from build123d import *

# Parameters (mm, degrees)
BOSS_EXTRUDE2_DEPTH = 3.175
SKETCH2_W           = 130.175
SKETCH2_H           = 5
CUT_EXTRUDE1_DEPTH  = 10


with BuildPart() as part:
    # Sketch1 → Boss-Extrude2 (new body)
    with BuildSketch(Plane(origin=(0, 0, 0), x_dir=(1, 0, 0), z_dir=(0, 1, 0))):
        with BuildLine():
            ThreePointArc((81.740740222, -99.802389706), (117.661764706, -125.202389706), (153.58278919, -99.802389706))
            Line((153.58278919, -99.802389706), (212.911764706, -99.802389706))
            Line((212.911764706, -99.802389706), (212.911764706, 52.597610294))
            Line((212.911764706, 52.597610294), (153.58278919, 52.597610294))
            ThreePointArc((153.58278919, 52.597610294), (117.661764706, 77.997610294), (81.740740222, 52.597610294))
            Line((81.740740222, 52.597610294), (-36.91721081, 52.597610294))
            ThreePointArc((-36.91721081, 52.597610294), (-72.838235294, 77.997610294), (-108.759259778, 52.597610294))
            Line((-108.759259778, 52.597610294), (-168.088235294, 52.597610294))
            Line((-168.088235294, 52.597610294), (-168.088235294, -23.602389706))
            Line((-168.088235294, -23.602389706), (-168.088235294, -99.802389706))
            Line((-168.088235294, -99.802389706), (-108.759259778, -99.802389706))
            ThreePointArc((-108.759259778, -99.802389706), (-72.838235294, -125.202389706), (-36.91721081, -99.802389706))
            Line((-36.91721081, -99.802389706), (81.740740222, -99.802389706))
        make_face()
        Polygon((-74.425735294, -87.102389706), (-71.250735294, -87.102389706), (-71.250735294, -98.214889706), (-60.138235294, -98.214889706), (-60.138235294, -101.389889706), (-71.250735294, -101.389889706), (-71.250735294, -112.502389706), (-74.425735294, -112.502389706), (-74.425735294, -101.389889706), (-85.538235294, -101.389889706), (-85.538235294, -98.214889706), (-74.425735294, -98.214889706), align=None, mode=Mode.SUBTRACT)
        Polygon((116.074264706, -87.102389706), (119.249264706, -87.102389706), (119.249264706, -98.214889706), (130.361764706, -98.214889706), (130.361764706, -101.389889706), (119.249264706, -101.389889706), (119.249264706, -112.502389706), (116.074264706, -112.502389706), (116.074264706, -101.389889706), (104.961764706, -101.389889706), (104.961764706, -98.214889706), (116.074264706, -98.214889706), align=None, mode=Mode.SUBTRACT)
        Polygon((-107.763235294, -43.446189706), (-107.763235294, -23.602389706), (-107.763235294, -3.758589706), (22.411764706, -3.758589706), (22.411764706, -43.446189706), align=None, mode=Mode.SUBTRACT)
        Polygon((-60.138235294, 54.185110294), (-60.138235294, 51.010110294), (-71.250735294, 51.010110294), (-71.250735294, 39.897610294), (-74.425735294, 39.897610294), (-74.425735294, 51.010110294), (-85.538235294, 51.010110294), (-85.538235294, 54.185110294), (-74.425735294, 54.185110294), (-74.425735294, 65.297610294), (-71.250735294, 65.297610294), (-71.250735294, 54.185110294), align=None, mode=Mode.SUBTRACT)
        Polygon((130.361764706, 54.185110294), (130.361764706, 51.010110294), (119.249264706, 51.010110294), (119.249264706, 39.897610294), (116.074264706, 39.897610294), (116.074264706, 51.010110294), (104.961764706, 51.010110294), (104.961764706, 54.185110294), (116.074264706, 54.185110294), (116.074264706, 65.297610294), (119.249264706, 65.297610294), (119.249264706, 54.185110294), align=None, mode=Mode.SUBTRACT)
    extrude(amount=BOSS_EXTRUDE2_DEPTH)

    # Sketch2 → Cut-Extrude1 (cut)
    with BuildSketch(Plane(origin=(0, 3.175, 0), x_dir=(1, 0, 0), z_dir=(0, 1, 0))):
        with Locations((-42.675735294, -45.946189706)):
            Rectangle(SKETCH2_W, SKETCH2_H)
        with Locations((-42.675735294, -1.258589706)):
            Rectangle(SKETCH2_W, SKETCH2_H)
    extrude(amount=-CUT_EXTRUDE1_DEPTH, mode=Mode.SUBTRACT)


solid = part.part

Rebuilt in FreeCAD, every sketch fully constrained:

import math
import FreeCAD as App
import Part
import Sketcher
from FreeCAD import Vector
Q = App.Units.Quantity


def add_polygon(sketch, points):
    """Adds a closed chain of lines whose ends are joined by coincident constraints."""
    first, n = sketch.GeometryCount, len(points)
    for a, b in zip(points, points[1:] + points[:1]):
        sketch.addGeometry(Part.LineSegment(App.Vector(*a, 0), App.Vector(*b, 0)), False)
    for i in range(n):
        sketch.addConstraint(Sketcher.Constraint("Coincident", first + i, 2, first + (i + 1) % n, 1))

doc = App.newDocument("Part")
body = doc.addObject("PartDesign::Body", "Body")

sketch1 = doc.addObject("Sketcher::SketchObject", "Sketch")
body.addObject(sketch1)
sketch1.AttachmentSupport = (doc.XZ_Plane, [""])
sketch1.MapMode = "FlatFace"
sketch1.addGeometry(Part.ArcOfCircle(Part.Circle(Vector(117.661765, 87.10239, 0), Vector(0, 0, 1), 38.1), math.radians(19.471221), math.radians(160.528779)), False)
sketch1.addGeometry(Part.LineSegment(Vector(153.582789, 99.80239, 0), Vector(212.911765, 99.80239, 0)), False)
sketch1.addGeometry(Part.LineSegment(Vector(212.911765, 99.80239, 0), Vector(212.911765, -52.59761, 0)), False)
sketch1.addGeometry(Part.LineSegment(Vector(212.911765, -52.59761, 0), Vector(153.582789, -52.59761, 0)), False)
sketch1.addGeometry(Part.ArcOfCircle(Part.Circle(Vector(117.661765, -39.89761, 0), Vector(0, 0, 1), 38.1), math.radians(-160.528779), math.radians(-19.471221)), False)
sketch1.addGeometry(Part.LineSegment(Vector(81.74074, -52.59761, 0), Vector(-36.917211, -52.59761, 0)), False)
sketch1.addGeometry(Part.ArcOfCircle(Part.Circle(Vector(-72.838235, -39.89761, 0), Vector(0, 0, 1), 38.1), math.radians(-160.528779), math.radians(-19.471221)), False)
sketch1.addGeometry(Part.LineSegment(Vector(-108.75926, -52.59761, 0), Vector(-168.088235, -52.59761, 0)), False)
sketch1.addGeometry(Part.LineSegment(Vector(-168.088235, -52.59761, 0), Vector(-168.088235, 99.80239, 0)), False)
sketch1.addGeometry(Part.LineSegment(Vector(-168.088235, 99.80239, 0), Vector(-108.75926, 99.80239, 0)), False)
sketch1.addGeometry(Part.ArcOfCircle(Part.Circle(Vector(-72.838235, 87.10239, 0), Vector(0, 0, 1), 38.1), math.radians(19.471221), math.radians(160.528779)), False)
sketch1.addGeometry(Part.LineSegment(Vector(-36.917211, 99.80239, 0), Vector(81.74074, 99.80239, 0)), False)
add_polygon(sketch1, [(-74.425735, 98.21489), (-74.425735, 87.10239), (-71.250735, 87.10239), (-71.250735, 98.21489), (-60.138235, 98.21489), (-60.138235, 101.38989), (-71.250735, 101.38989), (-71.250735, 112.50239), (-74.425735, 112.50239), (-74.425735, 101.38989), (-85.538235, 101.38989), (-85.538235, 98.21489)])
add_polygon(sketch1, [(116.074265, 98.21489), (116.074265, 87.10239), (119.249265, 87.10239), (119.249265, 98.21489), (130.361765, 98.21489), (130.361765, 101.38989), (119.249265, 101.38989), (119.249265, 112.50239), (116.074265, 112.50239), (116.074265, 101.38989), (104.961765, 101.38989), (104.961765, 98.21489)])
add_polygon(sketch1, [(22.411765, 43.44619), (-107.763235, 43.44619), (-107.763235, 3.75859), (22.411765, 3.75859)])
add_polygon(sketch1, [(-71.250735, -54.18511), (-60.138235, -54.18511), (-60.138235, -51.01011), (-71.250735, -51.01011), (-71.250735, -39.89761), (-74.425735, -39.89761), (-74.425735, -51.01011), (-85.538235, -51.01011), (-85.538235, -54.18511), (-74.425735, -54.18511), (-74.425735, -65.29761), (-71.250735, -65.29761)])
add_polygon(sketch1, [(119.249265, -54.18511), (130.361765, -54.18511), (130.361765, -51.01011), (119.249265, -51.01011), (119.249265, -39.89761), (116.074265, -39.89761), (116.074265, -51.01011), (104.961765, -51.01011), (104.961765, -54.18511), (116.074265, -54.18511), (116.074265, -65.29761), (119.249265, -65.29761)])
sketch1.addConstraint([
    Sketcher.Constraint("Coincident", 0, 1, 1, 1),
    Sketcher.Constraint("Coincident", 1, 2, 2, 1),
    Sketcher.Constraint("Coincident", 2, 2, 3, 1),
    Sketcher.Constraint("Coincident", 3, 2, 4, 2),
    Sketcher.Constraint("Coincident", 4, 1, 5, 1),
    Sketcher.Constraint("Coincident", 5, 2, 6, 2),
    Sketcher.Constraint("Coincident", 6, 1, 7, 1),
    Sketcher.Constraint("Coincident", 7, 2, 8, 1),
    Sketcher.Constraint("Coincident", 8, 2, 9, 1),
    Sketcher.Constraint("Coincident", 9, 2, 10, 2),
    Sketcher.Constraint("Coincident", 10, 1, 11, 1),
    Sketcher.Constraint("Coincident", 11, 2, 0, 2),
    Sketcher.Constraint("Horizontal", 1),
    Sketcher.Constraint("Vertical", 2),
    Sketcher.Constraint("Horizontal", 3),
    Sketcher.Constraint("Horizontal", 5),
    Sketcher.Constraint("Horizontal", 7),
    Sketcher.Constraint("Vertical", 8),
    Sketcher.Constraint("Horizontal", 9),
    Sketcher.Constraint("Horizontal", 11),
    Sketcher.Constraint("Vertical", 12),
    Sketcher.Constraint("Horizontal", 13),
    Sketcher.Constraint("Vertical", 14),
    Sketcher.Constraint("Horizontal", 15),
    Sketcher.Constraint("Vertical", 16),
    Sketcher.Constraint("Horizontal", 17),
    Sketcher.Constraint("Vertical", 18),
    Sketcher.Constraint("Horizontal", 19),
    Sketcher.Constraint("Vertical", 20),
    Sketcher.Constraint("Horizontal", 21),
    Sketcher.Constraint("Vertical", 22),
    Sketcher.Constraint("Horizontal", 23),
    Sketcher.Constraint("Vertical", 24),
    Sketcher.Constraint("Horizontal", 25),
    Sketcher.Constraint("Vertical", 26),
    Sketcher.Constraint("Horizontal", 27),
    Sketcher.Constraint("Vertical", 28),
    Sketcher.Constraint("Horizontal", 29),
    Sketcher.Constraint("Vertical", 30),
    Sketcher.Constraint("Horizontal", 31),
    Sketcher.Constraint("Vertical", 32),
    Sketcher.Constraint("Horizontal", 33),
    Sketcher.Constraint("Vertical", 34),
    Sketcher.Constraint("Horizontal", 35),
    Sketcher.Constraint("Horizontal", 36),
    Sketcher.Constraint("Vertical", 37),
    Sketcher.Constraint("Horizontal", 38),
    Sketcher.Constraint("Vertical", 39),
    Sketcher.Constraint("Horizontal", 40),
    Sketcher.Constraint("Vertical", 41),
    Sketcher.Constraint("Horizontal", 42),
    Sketcher.Constraint("Vertical", 43),
    Sketcher.Constraint("Horizontal", 44),
    Sketcher.Constraint("Vertical", 45),
    Sketcher.Constraint("Horizontal", 46),
    Sketcher.Constraint("Vertical", 47),
    Sketcher.Constraint("Horizontal", 48),
    Sketcher.Constraint("Vertical", 49),
    Sketcher.Constraint("Horizontal", 50),
    Sketcher.Constraint("Vertical", 51),
    Sketcher.Constraint("Horizontal", 52),
    Sketcher.Constraint("Vertical", 53),
    Sketcher.Constraint("Horizontal", 54),
    Sketcher.Constraint("Vertical", 55),
    Sketcher.Constraint("Horizontal", 56),
    Sketcher.Constraint("Vertical", 57),
    Sketcher.Constraint("Horizontal", 58),
    Sketcher.Constraint("Vertical", 59),
    Sketcher.Constraint("Horizontal", 60),
    Sketcher.Constraint("Vertical", 61),
    Sketcher.Constraint("Horizontal", 62),
    Sketcher.Constraint("Vertical", 63),
    Sketcher.Constraint("Equal", 0, 4),
    Sketcher.Constraint("Equal", 4, 6),
    Sketcher.Constraint("Equal", 6, 10),
    Sketcher.Constraint("Horizontal", 4, 3, 6, 3),
    Sketcher.Constraint("Horizontal", 0, 3, 10, 3),
    Sketcher.Constraint("Horizontal", 3, 2, 4, 1),
    Sketcher.Constraint("Horizontal", 5, 2, 6, 1),
    Sketcher.Constraint("Horizontal", 1, 2, 8, 2),
    Sketcher.Constraint("Horizontal", 9, 2, 10, 1),
    Sketcher.Constraint("Horizontal", 10, 3, 12, 2),
    Sketcher.Constraint("Horizontal", 17, 2, 20, 2),
    Sketcher.Constraint("Horizontal", 15, 2, 22, 2),
    Sketcher.Constraint("Horizontal", 13, 2, 24, 2),
    Sketcher.Constraint("Horizontal", 23, 2, 26, 2),
    Sketcher.Constraint("Horizontal", 21, 2, 28, 2),
    Sketcher.Constraint("Horizontal", 19, 2, 30, 2),
    Sketcher.Constraint("Horizontal", 29, 2, 32, 2),
    Sketcher.Constraint("Horizontal", 27, 2, 34, 2),
    Sketcher.Constraint("Horizontal", 6, 3, 43, 2),
    Sketcher.Constraint("Horizontal", 42, 2, 45, 2),
    Sketcher.Constraint("Horizontal", 40, 2, 47, 2),
    Sketcher.Constraint("Horizontal", 51, 2, 52, 2),
    Sketcher.Constraint("Horizontal", 46, 2, 53, 2),
    Sketcher.Constraint("Horizontal", 44, 2, 55, 2),
    Sketcher.Constraint("Horizontal", 54, 2, 57, 2),
    Sketcher.Constraint("Horizontal", 52, 2, 59, 2),
    Sketcher.Constraint("Horizontal", 50, 2, 61, 2),
    Sketcher.Constraint("Vertical", 0, 3, 4, 3),
    Sketcher.Constraint("Vertical", 6, 3, 10, 3),
    Sketcher.Constraint("Vertical", 0, 1, 3, 2),
    Sketcher.Constraint("Vertical", 14, 2, 17, 2),
    Sketcher.Constraint("Vertical", 12, 2, 19, 2),
    Sketcher.Constraint("Vertical", 26, 2, 29, 2),
    Sketcher.Constraint("Vertical", 24, 2, 31, 2),
    Sketcher.Constraint("Vertical", 16, 2, 40, 2),
    Sketcher.Constraint("Vertical", 18, 2, 42, 2),
    Sketcher.Constraint("Vertical", 23, 2, 44, 2),
    Sketcher.Constraint("Vertical", 22, 2, 46, 2),
    Sketcher.Constraint("Vertical", 45, 2, 48, 2),
    Sketcher.Constraint("Vertical", 43, 2, 50, 2),
    Sketcher.Constraint("Vertical", 28, 2, 52, 2),
    Sketcher.Constraint("Vertical", 30, 2, 54, 2),
    Sketcher.Constraint("Vertical", 35, 2, 56, 2),
    Sketcher.Constraint("Vertical", 34, 2, 58, 2),
    Sketcher.Constraint("Vertical", 57, 2, 60, 2),
    Sketcher.Constraint("Vertical", 55, 2, 62, 2),
    Sketcher.Constraint("Equal", 3, 7),
    Sketcher.Constraint("Equal", 17, 21),
    Sketcher.Constraint("Equal", 19, 25),
    Sketcher.Constraint("Equal", 23, 27),
    Sketcher.Constraint("Equal", 29, 33),
    Sketcher.Constraint("Equal", 60, 12),
    Sketcher.Constraint("Equal", 62, 16),
    Sketcher.Constraint("Equal", 14, 18),
    Sketcher.Constraint("Equal", 34, 41),
    Sketcher.Constraint("Equal", 32, 43),
    Sketcher.Constraint("Equal", 45, 49),
    Sketcher.Constraint("Radius", 0, Q("1.5 in")),
    Sketcher.Constraint("DistanceY", 2, 2, 2, 1, Q("6 in")),
    Sketcher.Constraint("DistanceX", 13, 1, 13, 2, Q("0.125 in")),
    Sketcher.Constraint("DistanceX", 15, 1, 15, 2, Q("0.4375 in")),
    Sketcher.Constraint("DistanceX", 36, 2, 36, 1, Q("5.125 in")),
    Sketcher.Constraint("DistanceY", 37, 2, 37, 1, 39.6876),
    Sketcher.Constraint("DistanceX", 5, 2, 5, 1, 118.657951),
    Sketcher.Constraint("DistanceX", 1, 1, 1, 2, 59.328976),
    Sketcher.Constraint("DistanceY", -1, 1, 0, 3, 87.10239),
    Sketcher.Constraint("DistanceY", 4, 3, -1, 1, 39.89761),
    Sketcher.Constraint("DistanceX", -1, 1, 0, 1, 153.582789),
    Sketcher.Constraint("DistanceY", -1, 1, 36, 2, 43.44619),
    Sketcher.Constraint("DistanceX", 12, 2, -1, 1, 74.425735),
    Sketcher.Constraint("DistanceX", -1, 1, 24, 2, 116.074265),
    Sketcher.Constraint("DistanceX", 36, 2, -1, 1, 107.763235),
])
pad1 = doc.addObject("PartDesign::Pad", "Pad")
body.addObject(pad1)
pad1.Profile = sketch1
pad1.Length = Q("0.125 in")
pad1.Reversed = True

sketch2 = doc.addObject("Sketcher::SketchObject", "Sketch001")
body.addObject(sketch2)
sketch2.AttachmentSupport = (doc.XZ_Plane, [""])
sketch2.MapMode = "FlatFace"
sketch2.AttachmentOffset = App.Placement(Vector(0, 0, -0.125 * 25.4), App.Rotation())
add_polygon(sketch2, [(-107.763235, 43.44619), (-107.763235, 48.44619), (22.411765, 48.44619), (22.411765, 43.44619)])
add_polygon(sketch2, [(-107.763235, -1.24141), (-107.763235, 3.75859), (22.411765, 3.75859), (22.411765, -1.24141)])
sketch2.addConstraint([
    Sketcher.Constraint("Vertical", 0),
    Sketcher.Constraint("Horizontal", 1),
    Sketcher.Constraint("Vertical", 2),
    Sketcher.Constraint("Horizontal", 3),
    Sketcher.Constraint("Vertical", 4),
    Sketcher.Constraint("Horizontal", 5),
    Sketcher.Constraint("Vertical", 6),
    Sketcher.Constraint("Horizontal", 7),
    Sketcher.Constraint("Vertical", 3, 2, 4, 2),
    Sketcher.Constraint("Vertical", 2, 2, 5, 2),
    Sketcher.Constraint("Equal", 2, 4),
    Sketcher.Constraint("DistanceX", 1, 1, 1, 2, Q("5.125 in")),
    Sketcher.Constraint("DistanceY", 0, 1, 0, 2, 5.0),
    Sketcher.Constraint("DistanceY", 4, 2, 3, 2, 39.6876),
    Sketcher.Constraint("DistanceY", -1, 1, 0, 2, 48.44619),
    Sketcher.Constraint("DistanceX", 0, 2, -1, 1, 107.763235),
])
pocket1 = doc.addObject("PartDesign::Pocket", "Pocket")
body.addObject(pocket1)
pocket1.Profile = sketch2
pocket1.Length = 10
pocket1.Reversed = True

doc.recompute()
